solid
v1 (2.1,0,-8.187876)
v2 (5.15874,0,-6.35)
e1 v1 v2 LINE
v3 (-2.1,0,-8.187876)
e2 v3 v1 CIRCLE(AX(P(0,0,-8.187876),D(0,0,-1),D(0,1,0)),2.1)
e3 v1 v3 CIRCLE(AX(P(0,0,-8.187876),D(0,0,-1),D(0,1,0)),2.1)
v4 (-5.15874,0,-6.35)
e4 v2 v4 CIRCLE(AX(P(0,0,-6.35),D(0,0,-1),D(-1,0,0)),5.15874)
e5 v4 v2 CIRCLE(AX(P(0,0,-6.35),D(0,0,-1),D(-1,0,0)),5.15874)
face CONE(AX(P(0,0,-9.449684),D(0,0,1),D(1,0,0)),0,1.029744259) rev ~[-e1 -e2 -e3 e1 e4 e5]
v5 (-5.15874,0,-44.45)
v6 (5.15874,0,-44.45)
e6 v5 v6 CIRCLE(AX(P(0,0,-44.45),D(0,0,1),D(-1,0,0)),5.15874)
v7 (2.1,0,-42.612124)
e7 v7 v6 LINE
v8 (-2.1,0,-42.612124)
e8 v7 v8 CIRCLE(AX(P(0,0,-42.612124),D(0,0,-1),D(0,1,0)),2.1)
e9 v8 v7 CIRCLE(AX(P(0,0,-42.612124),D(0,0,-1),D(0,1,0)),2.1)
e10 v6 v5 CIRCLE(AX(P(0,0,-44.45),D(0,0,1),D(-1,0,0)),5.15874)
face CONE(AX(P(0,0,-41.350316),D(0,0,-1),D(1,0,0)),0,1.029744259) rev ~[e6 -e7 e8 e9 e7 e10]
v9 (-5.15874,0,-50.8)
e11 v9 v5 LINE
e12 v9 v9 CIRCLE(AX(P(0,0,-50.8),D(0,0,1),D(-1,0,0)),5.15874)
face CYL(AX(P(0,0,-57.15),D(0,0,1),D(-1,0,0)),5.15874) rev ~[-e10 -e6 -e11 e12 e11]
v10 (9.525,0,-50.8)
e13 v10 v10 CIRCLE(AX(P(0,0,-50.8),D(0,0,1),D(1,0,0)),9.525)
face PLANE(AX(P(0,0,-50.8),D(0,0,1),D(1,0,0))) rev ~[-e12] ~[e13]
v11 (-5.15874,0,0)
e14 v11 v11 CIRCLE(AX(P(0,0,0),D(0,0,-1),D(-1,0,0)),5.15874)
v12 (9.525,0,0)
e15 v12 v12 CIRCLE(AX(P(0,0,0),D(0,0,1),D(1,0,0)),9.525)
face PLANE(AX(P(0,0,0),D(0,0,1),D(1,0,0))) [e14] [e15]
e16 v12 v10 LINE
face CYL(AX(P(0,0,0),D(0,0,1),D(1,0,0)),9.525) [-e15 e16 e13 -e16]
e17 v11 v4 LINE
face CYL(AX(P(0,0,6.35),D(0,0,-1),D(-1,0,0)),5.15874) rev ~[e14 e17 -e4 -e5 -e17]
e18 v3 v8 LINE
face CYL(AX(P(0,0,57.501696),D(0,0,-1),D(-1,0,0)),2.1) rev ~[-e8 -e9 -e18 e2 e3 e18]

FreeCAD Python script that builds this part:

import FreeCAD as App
import Part
import Sketcher
from FreeCAD import Vector
Q = App.Units.Quantity

doc = App.newDocument("Part")
body = doc.addObject("PartDesign::Body", "Body")

# Sketch on XY plane
sketch1 = doc.addObject("Sketcher::SketchObject", "Sketch")
body.addObject(sketch1)
sketch1.AttachmentSupport = (doc.XY_Plane, [""])
sketch1.MapMode = "FlatFace"
sketch1.addGeometry(Part.Circle(Vector(0, 0, 0), Vector(0, 0, 1), 9.525), False)
sketch1.addConstraint([
    Sketcher.Constraint("Coincident", 0, 3, -1, 1),
    Sketcher.Constraint("Diameter", 0, Q("0.75 in")),
])
pad1 = doc.addObject("PartDesign::Pad", "Pad")
body.addObject(pad1)
pad1.Profile = sketch1
pad1.Length = Q("2 in")
pad1.Reversed = True

# Sketch on XY plane
sketch2 = doc.addObject("Sketcher::SketchObject", "Sketch001")
body.addObject(sketch2)
sketch2.AttachmentSupport = (doc.XY_Plane, [""])
sketch2.MapMode = "FlatFace"
sketch2.addGeometry(Part.Circle(Vector(0, 0, 0), Vector(0, 0, 1), 2.1), False)
sketch2.addConstraint([
    Sketcher.Constraint("Coincident", 0, 3, -1, 1),
    Sketcher.Constraint("Diameter", 0, Q("4.2 mm")),
])
doc.recompute()
hole = doc.addObject("PartDesign::Hole", "Hole")
body.addObject(hole)
hole.Profile = sketch2
hole.ThreadType = "None"
hole.Diameter = 4.2
hole.DepthType = "ThroughAll"

# Sketch on XY plane
sketch3 = doc.addObject("Sketcher::SketchObject", "Sketch002")
body.addObject(sketch3)
sketch3.AttachmentSupport = (doc.XY_Plane, [""])
sketch3.MapMode = "FlatFace"
sketch3.AttachmentOffset = App.Placement(Vector(0, 0, -2 * 25.4), App.Rotation())
sketch3.addGeometry(Part.Circle(Vector(0, 0, 0), Vector(0, 0, 1), 5.15874), False)
sketch3.addConstraint([
    Sketcher.Constraint("Coincident", 0, 3, -1, 1),
    Sketcher.Constraint("Diameter", 0, Q("0.4062 in")),
])
doc.recompute()
hole2 = doc.addObject("PartDesign::Hole", "Hole001")
body.addObject(hole2)
hole2.Profile = sketch3
hole2.ThreadType = "None"
hole2.Diameter = Q("0.4062 in")
hole2.DepthType = "Dimension"
hole2.Depth = Q("0.25 in")
hole2.DrillPoint = "Angled"
hole2.DrillPointAngle = 118
hole2.Reversed = True

# Sketch on XY plane
sketch4 = doc.addObject("Sketcher::SketchObject", "Sketch003")
body.addObject(sketch4)
sketch4.AttachmentSupport = (doc.XY_Plane, [""])
sketch4.MapMode = "FlatFace"
sketch4.addGeometry(Part.Circle(Vector(0, 0, 0), Vector(0, 0, 1), 5.15874), False)
sketch4.addConstraint([
    Sketcher.Constraint("Coincident", 0, 3, -1, 1),
    Sketcher.Constraint("Diameter", 0, Q("0.4062 in")),
])
doc.recompute()
hole3 = doc.addObject("PartDesign::Hole", "Hole002")
body.addObject(hole3)
hole3.Profile = sketch4
hole3.ThreadType = "None"
hole3.Diameter = Q("0.4062 in")
hole3.DepthType = "Dimension"
hole3.Depth = Q("0.25 in")
hole3.DrillPoint = "Angled"
hole3.DrillPointAngle = 118

doc.recompute()
